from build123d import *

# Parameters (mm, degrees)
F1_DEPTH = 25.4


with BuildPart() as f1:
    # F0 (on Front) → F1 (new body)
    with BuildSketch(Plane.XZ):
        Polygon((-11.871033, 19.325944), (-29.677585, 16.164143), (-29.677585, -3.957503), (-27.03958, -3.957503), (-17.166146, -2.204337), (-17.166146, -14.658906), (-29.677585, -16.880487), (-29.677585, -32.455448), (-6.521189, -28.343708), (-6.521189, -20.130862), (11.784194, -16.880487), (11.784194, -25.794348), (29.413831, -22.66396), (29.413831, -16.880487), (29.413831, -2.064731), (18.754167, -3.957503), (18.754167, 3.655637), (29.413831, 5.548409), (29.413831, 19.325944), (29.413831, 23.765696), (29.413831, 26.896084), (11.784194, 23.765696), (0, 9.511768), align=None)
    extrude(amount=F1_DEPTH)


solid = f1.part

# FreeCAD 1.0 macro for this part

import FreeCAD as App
import Part
import Sketcher
Q = App.Units.Quantity


def add_polygon(sketch, points):
    """Adds a closed chain of lines whose ends are joined by coincident constraints."""
    first, n = sketch.GeometryCount, len(points)
    for a, b in zip(points, points[1:] + points[:1]):
        sketch.addGeometry(Part.LineSegment(App.Vector(*a, 0), App.Vector(*b, 0)), False)
    for i in range(n):
        sketch.addConstraint(Sketcher.Constraint("Coincident", first + i, 2, first + (i + 1) % n, 1))

doc = App.newDocument("Part")
body = doc.addObject("PartDesign::Body", "Body")

# Sketch on XZ plane
sketch1 = body.newObject("Sketcher::SketchObject", "Sketch")
sketch1.AttachmentSupport = (doc.getObject("XZ_Plane"), [""])
sketch1.MapMode = "FlatFace"
add_polygon(sketch1, [(-11.9, 19.3), (-29.7, 16.2), (-29.7, -4), (-27, -4), (-17.2, -2.2), (-17.2, -14.7), (-29.7, -16.9), (-29.7, -32.5), (-6.5, -28.3), (-6.5, -20.1), (11.8, -16.9), (11.8, -25.8), (29.4, -22.7), (29.4, -2.1), (18.8, -4), (18.8, 3.7), (29.4, 5.5), (29.4, 26.9), (11.8, 23.8), (0, 9.5)])  # lines 0-19
sketch1.addConstraint(Sketcher.Constraint("Vertical", 1))
sketch1.addConstraint(Sketcher.Constraint("Horizontal", 2))
sketch1.addConstraint(Sketcher.Constraint("Vertical", 4))
sketch1.addConstraint(Sketcher.Constraint("Vertical", 6))
sketch1.addConstraint(Sketcher.Constraint("Vertical", 8))
sketch1.addConstraint(Sketcher.Constraint("Vertical", 10))
sketch1.addConstraint(Sketcher.Constraint("Vertical", 12))
sketch1.addConstraint(Sketcher.Constraint("Vertical", 14))
sketch1.addConstraint(Sketcher.Constraint("Vertical", 16))
sketch1.addConstraint(Sketcher.Constraint("PointOnObject", 18, 2, -2))
sketch1.addConstraint(Sketcher.Constraint("Parallel", 0, 3))
sketch1.addConstraint(Sketcher.Constraint("Parallel", 3, 5))
sketch1.addConstraint(Sketcher.Constraint("Parallel", 5, 7))
sketch1.addConstraint(Sketcher.Constraint("Parallel", 7, 9))
sketch1.addConstraint(Sketcher.Constraint("Parallel", 9, 11))
sketch1.addConstraint(Sketcher.Constraint("Parallel", 11, 13))
sketch1.addConstraint(Sketcher.Constraint("Parallel", 13, 15))
sketch1.addConstraint(Sketcher.Constraint("Parallel", 15, 17))
sketch1.addConstraint(Sketcher.Constraint("Perpendicular", 18, 19))
sketch1.addConstraint(Sketcher.Constraint("Horizontal", 5, 2, 9, 2))
sketch1.addConstraint(Sketcher.Constraint("Horizontal", 2, 2, 13, 2))
sketch1.addConstraint(Sketcher.Constraint("Vertical", 1, 2, 5, 2))
sketch1.addConstraint(Sketcher.Constraint("Vertical", 12, 2, 15, 2))
sketch1.addConstraint(Sketcher.Constraint("Vertical", 10, 2, 17, 2))
sketch1.addConstraint(Sketcher.Constraint("DistanceY", 4, 2, 4, 1, Q("12.454569 mm")))
sketch1.addConstraint(Sketcher.Constraint("DistanceY", 6, 2, 6, 1, Q("15.574961 mm")))
sketch1.addConstraint(Sketcher.Constraint("DistanceY", 10, 2, 10, 1, Q("8.913861 mm")))
sketch1.addConstraint(Sketcher.Constraint("DistanceY", 12, 1, 12, 2, Q("20.599229 mm")))
sketch1.addConstraint(Sketcher.Constraint("DistanceY", 14, 1, 14, 2, Q("7.61314 mm")))
sketch1.addConstraint(Sketcher.Constraint("DistanceY", 13, 2, 17, 2, Q("27.723199 mm")))
sketch1.addConstraint(Sketcher.Constraint("DistanceY", 0, 2, 19, 2, Q("3.161801 mm")))
sketch1.addConstraint(Sketcher.Constraint("Distance", 7, Q("23.518611 mm")))
sketch1.addConstraint(Sketcher.Constraint("Distance", 9, Q("18.591718 mm")))
sketch1.addConstraint(Sketcher.Constraint("Distance", 18, Q("18.494369 mm")))
sketch1.addConstraint(Sketcher.Constraint("Distance", 19, Q("15.40258 mm")))
sketch1.addConstraint(Sketcher.Constraint("DistanceX", 2, 1, 2, 2, Q("2.638005 mm")))
sketch1.addConstraint(Sketcher.Constraint("DistanceY", 1, 2, 1, 1, Q("20.121646 mm")))
sketch1.addConstraint(Sketcher.Constraint("DistanceX", -1, 1, 11, 2, Q("29.413831 mm")))
sketch1.addConstraint(Sketcher.Constraint("DistanceY", 11, 2, -1, 1, Q("22.66396 mm")))
sketch1.addConstraint(Sketcher.Constraint("DistanceX", 1, 2, 3, 2, Q("12.511439 mm")))
pad1 = body.newObject("PartDesign::Pad", "Pad")
pad1.Profile = sketch1
pad1.Length = Q("1 in")

doc.recompute()
